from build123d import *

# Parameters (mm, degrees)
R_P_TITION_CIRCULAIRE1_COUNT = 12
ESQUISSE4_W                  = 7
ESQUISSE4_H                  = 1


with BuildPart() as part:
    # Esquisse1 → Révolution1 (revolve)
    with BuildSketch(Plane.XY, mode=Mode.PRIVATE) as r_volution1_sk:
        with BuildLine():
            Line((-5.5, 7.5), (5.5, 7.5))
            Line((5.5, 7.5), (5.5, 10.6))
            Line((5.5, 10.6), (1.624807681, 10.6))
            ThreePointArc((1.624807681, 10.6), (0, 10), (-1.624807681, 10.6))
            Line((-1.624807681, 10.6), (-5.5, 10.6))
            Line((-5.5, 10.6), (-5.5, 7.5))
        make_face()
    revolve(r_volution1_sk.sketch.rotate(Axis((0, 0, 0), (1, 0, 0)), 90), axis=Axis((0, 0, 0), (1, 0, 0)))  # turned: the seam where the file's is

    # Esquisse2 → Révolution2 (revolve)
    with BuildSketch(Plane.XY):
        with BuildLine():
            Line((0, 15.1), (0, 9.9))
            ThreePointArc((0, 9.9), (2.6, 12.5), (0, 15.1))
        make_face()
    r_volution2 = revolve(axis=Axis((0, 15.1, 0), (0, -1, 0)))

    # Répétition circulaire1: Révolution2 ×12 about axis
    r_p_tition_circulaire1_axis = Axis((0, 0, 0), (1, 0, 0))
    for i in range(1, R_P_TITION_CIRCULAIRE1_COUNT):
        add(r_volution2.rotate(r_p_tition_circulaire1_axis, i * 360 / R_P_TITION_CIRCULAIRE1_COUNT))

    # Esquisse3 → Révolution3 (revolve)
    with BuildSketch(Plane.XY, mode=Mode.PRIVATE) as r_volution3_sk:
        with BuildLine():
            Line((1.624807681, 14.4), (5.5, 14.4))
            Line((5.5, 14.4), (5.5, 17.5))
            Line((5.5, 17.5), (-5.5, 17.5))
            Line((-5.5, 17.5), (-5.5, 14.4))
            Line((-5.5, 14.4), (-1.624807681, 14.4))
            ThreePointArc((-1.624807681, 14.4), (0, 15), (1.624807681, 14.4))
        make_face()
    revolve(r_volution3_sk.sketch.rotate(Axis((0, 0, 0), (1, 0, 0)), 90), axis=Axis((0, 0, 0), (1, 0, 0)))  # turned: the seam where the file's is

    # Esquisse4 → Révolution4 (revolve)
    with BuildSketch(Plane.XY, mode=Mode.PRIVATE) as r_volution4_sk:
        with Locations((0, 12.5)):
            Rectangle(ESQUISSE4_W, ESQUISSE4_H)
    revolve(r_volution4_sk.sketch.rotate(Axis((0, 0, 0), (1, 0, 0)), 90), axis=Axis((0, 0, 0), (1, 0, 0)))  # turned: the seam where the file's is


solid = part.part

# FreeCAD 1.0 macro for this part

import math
import FreeCAD as App
import Part
import Sketcher
from FreeCAD import Vector

doc = App.newDocument("Part")
params = doc.addObject("Spreadsheet::Sheet", "Params")
for row, (alias, value) in enumerate([
    ("sketch1_radius", "2.5 mm"),
    ("sketch1_width", "11 mm"),
    ("sketch1_height", "3.1 mm"),
    ("revolution_angle", "360 deg"),
    ("sketch2_radius", "2.6 mm"),
    ("revolution2_angle", "360 deg"),
    ("sketch3_radius", "2.5 mm"),
    ("sketch3_width", "11 mm"),
    ("sketch3_height", "3.1 mm"),
    ("revolution3_angle", "360 deg"),
    ("sketch4_width", "7 mm"),
    ("sketch4_height", "1 mm"),
    ("revolution4_angle", "360 deg"),
], start=1):
    params.set(f"A{row}", alias)
    params.set(f"B{row}", "=" + value)
    params.setAlias(f"B{row}", alias)

body = doc.addObject("PartDesign::Body", "Body")

sketch1 = body.newObject("Sketcher::SketchObject", "Sketch")
sketch1.AttachmentSupport = (doc.getObject("XY_Plane"), [""])
sketch1.MapMode = "FlatFace"
sketch1.addGeometry(Part.LineSegment(Vector(-5.5, 7.5, 0), Vector(5.5, 7.5, 0)), False)
sketch1.addGeometry(Part.LineSegment(Vector(5.5, 7.5, 0), Vector(5.5, 10.6, 0)), False)
sketch1.addGeometry(Part.LineSegment(Vector(5.5, 10.6, 0), Vector(1.6, 10.6, 0)), False)
sketch1.addGeometry(Part.ArcOfCircle(Part.Circle(Vector(0, 12.5, 0), Vector(0, 0, 1), 2.5), math.radians(-131), math.radians(-49)), False)
sketch1.addGeometry(Part.LineSegment(Vector(-1.6, 10.6, 0), Vector(-5.5, 10.6, 0)), False)
sketch1.addGeometry(Part.LineSegment(Vector(-5.5, 10.6, 0), Vector(-5.5, 7.5, 0)), False)
sketch1.addConstraint(Sketcher.Constraint("Coincident", 0, 2, 1, 1))
sketch1.addConstraint(Sketcher.Constraint("Coincident", 1, 2, 2, 1))
sketch1.addConstraint(Sketcher.Constraint("Coincident", 2, 2, 3, 2))
sketch1.addConstraint(Sketcher.Constraint("Coincident", 3, 1, 4, 1))
sketch1.addConstraint(Sketcher.Constraint("Coincident", 4, 2, 5, 1))
sketch1.addConstraint(Sketcher.Constraint("Coincident", 5, 2, 0, 1))
sketch1.addConstraint(Sketcher.Constraint("Horizontal", 0))
sketch1.addConstraint(Sketcher.Constraint("Vertical", 1))
sketch1.addConstraint(Sketcher.Constraint("Horizontal", 2))
sketch1.addConstraint(Sketcher.Constraint("Horizontal", 4))
sketch1.addConstraint(Sketcher.Constraint("Vertical", 5))
sketch1.addConstraint(Sketcher.Constraint("Symmetric", 2, 2, 3, 1, -2))
sketch1.addConstraint(Sketcher.Constraint("Equal", 2, 4))
sketch1.addConstraint(Sketcher.Constraint("Radius", 3, 2.5))
sketch1.addConstraint(Sketcher.Constraint("DistanceX", 0, 1, 0, 2, 11.0))
sketch1.addConstraint(Sketcher.Constraint("DistanceY", 1, 1, 1, 2, 3.1))
sketch1.addConstraint(Sketcher.Constraint("DistanceY", 0, 2, 3, 3, 5.0))
sketch1.addConstraint(Sketcher.Constraint("DistanceY", -1, 1, 3, 3, 12.5))
sketch1.setExpression("Constraints[13]", "Params.sketch1_radius")
sketch1.setExpression("Constraints[14]", "Params.sketch1_width")
sketch1.setExpression("Constraints[15]", "Params.sketch1_height")
revolution = body.newObject("PartDesign::Revolution", "Revolution")
revolution.Profile = sketch1
revolution.ReferenceAxis = (sketch1, ["H_Axis"])
revolution.setExpression("Angle", "Params.revolution_angle")

sketch2 = body.newObject("Sketcher::SketchObject", "Sketch001")
sketch2.AttachmentSupport = (doc.getObject("XY_Plane"), [""])
sketch2.MapMode = "FlatFace"
sketch2.addGeometry(Part.LineSegment(Vector(0, 15.1, 0), Vector(0, 9.9, 0)), False)
sketch2.addGeometry(Part.ArcOfCircle(Part.Circle(Vector(0, 12.5, 0), Vector(0, 0, 1), 2.6), math.radians(-90), math.radians(90)), False)
sketch2.addConstraint(Sketcher.Constraint("Coincident", 0, 1, 1, 2))
sketch2.addConstraint(Sketcher.Constraint("Coincident", 1, 1, 0, 2))
sketch2.addConstraint(Sketcher.Constraint("Vertical", 0))
sketch2.addConstraint(Sketcher.Constraint("PointOnObject", 1, 3, -2))
sketch2.addConstraint(Sketcher.Constraint("PointOnObject", 0, 1, -2))
sketch2.addConstraint(Sketcher.Constraint("Radius", 1, 2.6))
sketch2.addConstraint(Sketcher.Constraint("DistanceY", -1, 1, 1, 3, 12.5))
sketch2.setExpression("Constraints[5]", "Params.sketch2_radius")
revolution2 = body.newObject("PartDesign::Revolution", "Revolution001")
revolution2.Profile = sketch2
revolution2.ReferenceAxis = (sketch2, ["V_Axis"])
revolution2.setExpression("Angle", "Params.revolution2_angle")
doc.recompute()

polarpattern = body.newObject("PartDesign::PolarPattern", "PolarPattern")
polarpattern.Originals = [revolution2]
polarpattern.Axis = (doc.getObject("X_Axis"), [""])
polarpattern.Angle = 360
polarpattern.Occurrences = 12
body.Tip = polarpattern

sketch3 = body.newObject("Sketcher::SketchObject", "Sketch002")
sketch3.AttachmentSupport = (doc.getObject("XY_Plane"), [""])
sketch3.MapMode = "FlatFace"
sketch3.addGeometry(Part.LineSegment(Vector(1.6, 14.4, 0), Vector(5.5, 14.4, 0)), False)
sketch3.addGeometry(Part.LineSegment(Vector(5.5, 14.4, 0), Vector(5.5, 17.5, 0)), False)
sketch3.addGeometry(Part.LineSegment(Vector(5.5, 17.5, 0), Vector(-5.5, 17.5, 0)), False)
sketch3.addGeometry(Part.LineSegment(Vector(-5.5, 17.5, 0), Vector(-5.5, 14.4, 0)), False)
sketch3.addGeometry(Part.LineSegment(Vector(-5.5, 14.4, 0), Vector(-1.6, 14.4, 0)), False)
sketch3.addGeometry(Part.ArcOfCircle(Part.Circle(Vector(0, 12.5, 0), Vector(0, 0, 1), 2.5), math.radians(49), math.radians(131)), False)
sketch3.addConstraint(Sketcher.Constraint("Coincident", 0, 2, 1, 1))
sketch3.addConstraint(Sketcher.Constraint("Coincident", 1, 2, 2, 1))
sketch3.addConstraint(Sketcher.Constraint("Coincident", 2, 2, 3, 1))
sketch3.addConstraint(Sketcher.Constraint("Coincident", 3, 2, 4, 1))
sketch3.addConstraint(Sketcher.Constraint("Coincident", 4, 2, 5, 2))
sketch3.addConstraint(Sketcher.Constraint("Coincident", 5, 1, 0, 1))
sketch3.addConstraint(Sketcher.Constraint("Horizontal", 0))
sketch3.addConstraint(Sketcher.Constraint("Vertical", 1))
sketch3.addConstraint(Sketcher.Constraint("Horizontal", 2))
sketch3.addConstraint(Sketcher.Constraint("Vertical", 3))
sketch3.addConstraint(Sketcher.Constraint("Horizontal", 4))
sketch3.addConstraint(Sketcher.Constraint("Symmetric", 0, 2, 3, 2, -2))
sketch3.addConstraint(Sketcher.Constraint("PointOnObject", 5, 3, -2))
sketch3.addConstraint(Sketcher.Constraint("Radius", 5, 2.5))
sketch3.addConstraint(Sketcher.Constraint("DistanceX", 2, 2, 2, 1, 11.0))
sketch3.addConstraint(Sketcher.Constraint("DistanceY", 1, 1, 1, 2, 3.1))
sketch3.addConstraint(Sketcher.Constraint("DistanceY", 5, 3, 1, 2, 5.0))
sketch3.addConstraint(Sketcher.Constraint("DistanceY", -1, 1, 5, 3, 12.5))
sketch3.setExpression("Constraints[13]", "Params.sketch3_radius")
sketch3.setExpression("Constraints[14]", "Params.sketch3_width")
sketch3.setExpression("Constraints[15]", "Params.sketch3_height")
revolution3 = body.newObject("PartDesign::Revolution", "Revolution002")
revolution3.Profile = sketch3
revolution3.ReferenceAxis = (sketch3, ["H_Axis"])
revolution3.setExpression("Angle", "Params.revolution3_angle")

sketch4 = body.newObject("Sketcher::SketchObject", "Sketch003")
sketch4.AttachmentSupport = (doc.getObject("XY_Plane"), [""])
sketch4.MapMode = "FlatFace"
sketch4.addGeometry(Part.LineSegment(Vector(-3.5, 13, 0), Vector(-3.5, 12, 0)), False)
sketch4.addGeometry(Part.LineSegment(Vector(-3.5, 12, 0), Vector(3.5, 12, 0)), False)
sketch4.addGeometry(Part.LineSegment(Vector(3.5, 12, 0), Vector(3.5, 13, 0)), False)
sketch4.addGeometry(Part.LineSegment(Vector(3.5, 13, 0), Vector(-3.5, 13, 0)), False)
sketch4.addConstraint(Sketcher.Constraint("Coincident", 0, 2, 1, 1))
sketch4.addConstraint(Sketcher.Constraint("Coincident", 1, 2, 2, 1))
sketch4.addConstraint(Sketcher.Constraint("Coincident", 2, 2, 3, 1))
sketch4.addConstraint(Sketcher.Constraint("Coincident", 3, 2, 0, 1))
sketch4.addConstraint(Sketcher.Constraint("Vertical", 0))
sketch4.addConstraint(Sketcher.Constraint("Horizontal", 1))
sketch4.addConstraint(Sketcher.Constraint("Vertical", 2))
sketch4.addConstraint(Sketcher.Constraint("Horizontal", 3))
sketch4.addConstraint(Sketcher.Constraint("DistanceX", 1, 1, 1, 2, 7.0))
sketch4.addConstraint(Sketcher.Constraint("DistanceY", 0, 2, 0, 1, 1.0))
sketch4.addConstraint(Sketcher.Constraint("DistanceY", -1, 1, 0, 2, 12.0))
sketch4.addConstraint(Sketcher.Constraint("DistanceX", 0, 2, -1, 1, 3.5))
sketch4.setExpression("Constraints[8]", "Params.sketch4_width")
sketch4.setExpression("Constraints[9]", "Params.sketch4_height")
revolution4 = body.newObject("PartDesign::Revolution", "Revolution003")
revolution4.Profile = sketch4
revolution4.ReferenceAxis = (sketch4, ["H_Axis"])
revolution4.setExpression("Angle", "Params.revolution4_angle")

doc.recompute()
